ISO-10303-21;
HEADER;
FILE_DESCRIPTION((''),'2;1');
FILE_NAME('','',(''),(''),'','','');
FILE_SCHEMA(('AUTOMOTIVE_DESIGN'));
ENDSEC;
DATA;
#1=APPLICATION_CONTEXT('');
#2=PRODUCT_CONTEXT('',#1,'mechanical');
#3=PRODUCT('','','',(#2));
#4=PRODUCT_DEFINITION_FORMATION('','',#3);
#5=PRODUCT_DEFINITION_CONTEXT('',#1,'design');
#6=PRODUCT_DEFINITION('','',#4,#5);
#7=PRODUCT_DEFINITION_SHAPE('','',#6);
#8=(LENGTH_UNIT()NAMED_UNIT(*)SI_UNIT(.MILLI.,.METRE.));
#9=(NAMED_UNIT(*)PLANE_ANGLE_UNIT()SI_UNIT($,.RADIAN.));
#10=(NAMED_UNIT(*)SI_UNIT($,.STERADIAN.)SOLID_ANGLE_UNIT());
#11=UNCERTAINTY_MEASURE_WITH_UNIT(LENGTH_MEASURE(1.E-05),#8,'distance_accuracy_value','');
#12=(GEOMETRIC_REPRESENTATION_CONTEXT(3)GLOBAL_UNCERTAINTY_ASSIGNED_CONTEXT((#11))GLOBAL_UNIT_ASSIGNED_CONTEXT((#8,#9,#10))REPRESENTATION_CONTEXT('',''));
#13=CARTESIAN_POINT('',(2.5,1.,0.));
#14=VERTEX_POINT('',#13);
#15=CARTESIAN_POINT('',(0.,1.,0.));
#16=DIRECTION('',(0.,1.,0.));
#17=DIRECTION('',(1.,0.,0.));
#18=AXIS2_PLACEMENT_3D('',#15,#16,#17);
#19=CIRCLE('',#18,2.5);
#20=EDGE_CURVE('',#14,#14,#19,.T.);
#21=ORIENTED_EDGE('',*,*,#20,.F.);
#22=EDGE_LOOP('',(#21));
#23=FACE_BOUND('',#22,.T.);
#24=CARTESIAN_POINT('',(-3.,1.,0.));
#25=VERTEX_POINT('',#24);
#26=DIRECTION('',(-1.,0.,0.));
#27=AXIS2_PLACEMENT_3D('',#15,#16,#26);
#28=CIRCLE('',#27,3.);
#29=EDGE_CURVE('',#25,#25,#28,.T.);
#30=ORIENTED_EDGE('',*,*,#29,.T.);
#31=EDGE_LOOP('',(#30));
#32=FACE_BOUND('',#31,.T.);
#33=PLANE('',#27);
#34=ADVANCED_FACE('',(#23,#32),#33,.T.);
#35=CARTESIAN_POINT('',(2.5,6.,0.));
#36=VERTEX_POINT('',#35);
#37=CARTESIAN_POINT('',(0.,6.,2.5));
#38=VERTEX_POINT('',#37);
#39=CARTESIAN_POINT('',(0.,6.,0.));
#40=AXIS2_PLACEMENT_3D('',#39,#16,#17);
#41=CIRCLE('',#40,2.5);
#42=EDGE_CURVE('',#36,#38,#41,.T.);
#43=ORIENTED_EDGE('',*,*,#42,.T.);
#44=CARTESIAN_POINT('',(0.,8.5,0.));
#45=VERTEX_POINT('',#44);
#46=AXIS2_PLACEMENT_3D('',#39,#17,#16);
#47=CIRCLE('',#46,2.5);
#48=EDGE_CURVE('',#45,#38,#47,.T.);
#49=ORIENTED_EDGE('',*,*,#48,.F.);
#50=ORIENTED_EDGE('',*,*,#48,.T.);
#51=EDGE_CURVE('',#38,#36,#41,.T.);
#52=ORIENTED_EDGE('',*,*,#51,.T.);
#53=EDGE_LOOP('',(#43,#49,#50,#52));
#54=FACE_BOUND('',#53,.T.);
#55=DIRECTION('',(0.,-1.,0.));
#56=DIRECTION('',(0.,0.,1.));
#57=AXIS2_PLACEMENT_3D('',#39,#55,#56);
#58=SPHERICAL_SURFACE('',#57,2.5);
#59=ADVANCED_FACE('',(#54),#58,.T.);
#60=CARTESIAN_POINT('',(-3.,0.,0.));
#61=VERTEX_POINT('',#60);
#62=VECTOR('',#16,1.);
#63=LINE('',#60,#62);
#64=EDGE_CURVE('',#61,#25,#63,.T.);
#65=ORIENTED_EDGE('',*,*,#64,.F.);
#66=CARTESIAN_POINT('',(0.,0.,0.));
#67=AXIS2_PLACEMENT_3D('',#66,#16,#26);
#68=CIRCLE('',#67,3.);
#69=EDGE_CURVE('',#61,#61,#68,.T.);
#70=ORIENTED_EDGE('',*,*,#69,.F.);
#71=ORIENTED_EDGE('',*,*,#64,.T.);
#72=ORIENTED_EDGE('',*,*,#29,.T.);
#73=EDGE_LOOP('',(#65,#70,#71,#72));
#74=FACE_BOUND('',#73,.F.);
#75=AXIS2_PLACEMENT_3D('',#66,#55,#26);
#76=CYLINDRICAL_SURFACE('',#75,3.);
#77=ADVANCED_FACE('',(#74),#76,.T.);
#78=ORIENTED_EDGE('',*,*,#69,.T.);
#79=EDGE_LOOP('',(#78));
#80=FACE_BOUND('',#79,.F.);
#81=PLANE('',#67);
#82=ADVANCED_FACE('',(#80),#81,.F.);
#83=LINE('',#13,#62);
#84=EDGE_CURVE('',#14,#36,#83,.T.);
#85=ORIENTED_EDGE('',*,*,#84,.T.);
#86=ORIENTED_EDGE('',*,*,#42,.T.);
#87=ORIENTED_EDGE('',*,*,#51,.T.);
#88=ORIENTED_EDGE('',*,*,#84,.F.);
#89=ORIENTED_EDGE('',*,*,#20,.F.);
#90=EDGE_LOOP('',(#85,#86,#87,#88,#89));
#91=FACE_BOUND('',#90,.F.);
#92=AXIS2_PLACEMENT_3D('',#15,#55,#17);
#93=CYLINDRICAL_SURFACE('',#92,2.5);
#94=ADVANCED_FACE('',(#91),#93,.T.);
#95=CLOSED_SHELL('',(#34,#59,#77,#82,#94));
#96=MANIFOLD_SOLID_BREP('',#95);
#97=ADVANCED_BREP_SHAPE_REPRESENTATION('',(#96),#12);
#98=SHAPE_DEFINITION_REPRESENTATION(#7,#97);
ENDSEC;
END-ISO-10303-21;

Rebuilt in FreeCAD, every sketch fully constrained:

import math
import FreeCAD as App
import Part
import Sketcher

V = App.Vector

doc = App.newDocument("Part")
body = doc.addObject("PartDesign::Body", "Body")

sketch1 = body.newObject("Sketcher::SketchObject", "Sketch")
sketch1.AttachmentSupport = (doc.getObject("XZ_Plane"), [""])
sketch1.MapMode = "FlatFace"
sketch1.addGeometry(Part.Circle(V(0, 0, 0), V(0, 0, 1), 3), False)
sketch1.addConstraint(Sketcher.Constraint("Coincident", 0, 3, -1, 1))
sketch1.addConstraint(Sketcher.Constraint("Diameter", 0, 6.0))
pad1 = body.newObject("PartDesign::Pad", "Pad")
pad1.Profile = sketch1
pad1.Length = 1
pad1.Reversed = True

sketch2 = body.newObject("Sketcher::SketchObject", "Sketch001")
sketch2.AttachmentSupport = (doc.getObject("XZ_Plane"), [""])
sketch2.MapMode = "FlatFace"
sketch2.AttachmentOffset = App.Placement(V(0, 0, -1), App.Rotation())
sketch2.addGeometry(Part.Circle(V(0, 0, 0), V(0, 0, 1), 2.5), False)
sketch2.addConstraint(Sketcher.Constraint("Coincident", 0, 3, -1, 1))
sketch2.addConstraint(Sketcher.Constraint("Diameter", 0, 5.0))
pad2 = body.newObject("PartDesign::Pad", "Pad001")
pad2.Profile = sketch2
pad2.Length = 5
pad2.Reversed = True

sketch3 = body.newObject("Sketcher::SketchObject", "Sketch002")
sketch3.AttachmentSupport = (doc.getObject("YZ_Plane"), [""])
sketch3.MapMode = "FlatFace"
sketch3.addGeometry(Part.LineSegment(V(6, 2.5, 0), V(6, 0, 0)), False)
sketch3.addGeometry(Part.LineSegment(V(6, 0, 0), V(8.5, 0, 0)), False)
sketch3.addGeometry(Part.ArcOfCircle(Part.Circle(V(6, 0, 0), V(0, 0, 1), 2.5), math.radians(0), math.radians(90)), False)
sketch3.addConstraint(Sketcher.Constraint("Coincident", 0, 2, 1, 1))
sketch3.addConstraint(Sketcher.Constraint("Coincident", 1, 2, 2, 1))
sketch3.addConstraint(Sketcher.Constraint("Coincident", 2, 2, 0, 1))
sketch3.addConstraint(Sketcher.Constraint("Vertical", 0))
sketch3.addConstraint(Sketcher.Constraint("Horizontal", 1))
sketch3.addConstraint(Sketcher.Constraint("Coincident", 0, 2, 2, 3))
sketch3.addConstraint(Sketcher.Constraint("PointOnObject", 2, 3, -1))
sketch3.addConstraint(Sketcher.Constraint("Radius", 2, 2.5))
sketch3.addConstraint(Sketcher.Constraint("DistanceX", -1, 1, 2, 3, 6.0))
revolution = body.newObject("PartDesign::Revolution", "Revolution")
revolution.Profile = sketch3
revolution.ReferenceAxis = (sketch3, ["H_Axis"])
revolution.Angle = 360

doc.recompute()
